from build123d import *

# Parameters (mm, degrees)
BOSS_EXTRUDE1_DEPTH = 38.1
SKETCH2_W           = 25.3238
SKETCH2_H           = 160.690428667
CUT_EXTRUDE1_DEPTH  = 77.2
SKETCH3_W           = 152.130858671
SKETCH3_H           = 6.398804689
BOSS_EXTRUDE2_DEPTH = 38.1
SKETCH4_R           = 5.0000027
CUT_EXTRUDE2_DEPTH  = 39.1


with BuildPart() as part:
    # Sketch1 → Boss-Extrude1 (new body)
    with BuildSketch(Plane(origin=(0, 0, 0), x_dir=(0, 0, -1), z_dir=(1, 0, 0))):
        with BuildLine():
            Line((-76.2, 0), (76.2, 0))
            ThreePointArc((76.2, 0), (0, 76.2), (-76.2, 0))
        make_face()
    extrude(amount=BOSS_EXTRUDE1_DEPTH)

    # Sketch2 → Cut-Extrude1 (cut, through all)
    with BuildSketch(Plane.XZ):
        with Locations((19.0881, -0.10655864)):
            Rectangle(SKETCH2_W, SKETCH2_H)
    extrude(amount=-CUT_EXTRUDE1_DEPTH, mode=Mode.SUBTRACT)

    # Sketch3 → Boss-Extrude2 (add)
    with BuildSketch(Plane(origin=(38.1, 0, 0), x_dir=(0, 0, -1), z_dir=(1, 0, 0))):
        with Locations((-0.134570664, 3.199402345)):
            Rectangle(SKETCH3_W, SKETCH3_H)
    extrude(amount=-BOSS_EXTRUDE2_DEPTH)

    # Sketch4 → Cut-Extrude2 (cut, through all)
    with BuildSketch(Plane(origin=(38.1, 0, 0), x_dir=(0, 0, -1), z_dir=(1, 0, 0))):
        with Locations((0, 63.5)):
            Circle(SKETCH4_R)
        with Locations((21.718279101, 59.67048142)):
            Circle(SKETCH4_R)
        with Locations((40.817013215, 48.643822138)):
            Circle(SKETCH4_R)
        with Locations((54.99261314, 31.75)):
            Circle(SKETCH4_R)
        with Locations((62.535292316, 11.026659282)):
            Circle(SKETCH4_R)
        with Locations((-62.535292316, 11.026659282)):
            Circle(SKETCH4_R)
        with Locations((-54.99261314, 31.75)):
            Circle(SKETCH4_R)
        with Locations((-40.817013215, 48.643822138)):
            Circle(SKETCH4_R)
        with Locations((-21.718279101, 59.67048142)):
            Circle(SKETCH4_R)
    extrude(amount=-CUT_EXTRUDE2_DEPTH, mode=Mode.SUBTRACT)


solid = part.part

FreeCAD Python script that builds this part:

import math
import FreeCAD as App
import Part
import Sketcher
Q = App.Units.Quantity

doc = App.newDocument("Part")
body = doc.addObject("PartDesign::Body", "Body")
body.AllowCompound = True

sketch1 = body.newObject("Sketcher::SketchObject", "Sketch")
sketch1.AttachmentSupport = (doc.getObject("YZ_Plane"), [""])
sketch1.MapMode = "FlatFace"
sketch1.addGeometry([
    Part.LineSegment(App.Vector(0, 76, 0), App.Vector(0, -76, 0)),
    Part.ArcOfCircle(Part.Circle(App.Vector(0, 0, 0), App.Vector(0, 0, 1), 76), math.radians(-90), math.radians(90)),
], False)
sketch1.addConstraint([
    Sketcher.Constraint("Coincident", 0, 1, 1, 2),
    Sketcher.Constraint("Coincident", 1, 1, 0, 2),
    Sketcher.Constraint("Vertical", 0),
    Sketcher.Constraint("Coincident", 1, 3, -1, 1),
    Sketcher.Constraint("PointOnObject", 0, 1, -2),
    Sketcher.Constraint("Radius", 1, Q("3 in")),
])
pad1 = body.newObject("PartDesign::Pad", "Pad")
pad1.Profile = sketch1
pad1.Length = Q("1.5 in")

sketch2 = body.newObject("Sketcher::SketchObject", "Sketch001")
sketch2.AttachmentSupport = (doc.getObject("XZ_Plane"), [""])
sketch2.MapMode = "FlatFace"
sketch2.addGeometry([
    Part.LineSegment(App.Vector(6, 80, 0), App.Vector(6, -80, 0)),
    Part.LineSegment(App.Vector(6, -80, 0), App.Vector(32, -80, 0)),
    Part.LineSegment(App.Vector(32, -80, 0), App.Vector(32, 80, 0)),
    Part.LineSegment(App.Vector(32, 80, 0), App.Vector(6, 80, 0)),
], False)
sketch2.addConstraint([
    Sketcher.Constraint("Coincident", 0, 2, 1, 1),
    Sketcher.Constraint("Coincident", 1, 2, 2, 1),
    Sketcher.Constraint("Coincident", 2, 2, 3, 1),
    Sketcher.Constraint("Coincident", 3, 2, 0, 1),
    Sketcher.Constraint("Vertical", 0),
    Sketcher.Constraint("Horizontal", 1),
    Sketcher.Constraint("Vertical", 2),
    Sketcher.Constraint("Horizontal", 3),
    Sketcher.Constraint("DistanceX", 1, 1, 1, 2, Q("0.997 in")),
    Sketcher.Constraint("DistanceX", -1, 1, 1, 2, Q("1.25 in")),
    Sketcher.Constraint("DistanceY", 0, 2, 0, 1, Q("160.690429 mm")),
    Sketcher.Constraint("DistanceY", 0, 2, -1, 1, Q("80.451773 mm")),
])
pocket1 = body.newObject("PartDesign::Pocket", "Pocket")
pocket1.Profile = sketch2
pocket1.Type = "ThroughAll"

sketch3 = body.newObject("Sketcher::SketchObject", "Sketch002")
sketch3.AttachmentSupport = (doc.getObject("YZ_Plane"), [""])
sketch3.MapMode = "FlatFace"
sketch3.AttachmentOffset = App.Placement(App.Vector(0, 0, 1.5 * 25.4), App.Rotation())
sketch3.addGeometry([
    Part.LineSegment(App.Vector(6, 76, 0), App.Vector(0, 76, 0)),
    Part.LineSegment(App.Vector(0, 76, 0), App.Vector(0, -76, 0)),
    Part.LineSegment(App.Vector(0, -76, 0), App.Vector(6, -76, 0)),
    Part.LineSegment(App.Vector(6, -76, 0), App.Vector(6, 76, 0)),
], False)
sketch3.addConstraint([
    Sketcher.Constraint("Coincident", 0, 2, 1, 1),
    Sketcher.Constraint("Coincident", 1, 2, 2, 1),
    Sketcher.Constraint("Coincident", 2, 2, 3, 1),
    Sketcher.Constraint("Coincident", 3, 2, 0, 1),
    Sketcher.Constraint("Horizontal", 0),
    Sketcher.Constraint("Vertical", 1),
    Sketcher.Constraint("Horizontal", 2),
    Sketcher.Constraint("Vertical", 3),
    Sketcher.Constraint("PointOnObject", 0, 2, -2),
    Sketcher.Constraint("DistanceY", -1, 1, 0, 2, Q("3 in")),
    Sketcher.Constraint("DistanceY", 1, 2, 1, 1, Q("152.130859 mm")),
    Sketcher.Constraint("DistanceX", 0, 2, 0, 1, Q("6.398805 mm")),
])
pad2 = body.newObject("PartDesign::Pad", "Pad001")
pad2.Profile = sketch3
pad2.Length = Q("1.5 in")
pad2.Reversed = True

sketch4 = body.newObject("Sketcher::SketchObject", "Sketch003")
sketch4.AttachmentSupport = (doc.getObject("YZ_Plane"), [""])
sketch4.MapMode = "FlatFace"
sketch4.AttachmentOffset = App.Placement(App.Vector(0, 0, 1.5 * 25.4), App.Rotation())
sketch4.addGeometry([
    Part.Circle(App.Vector(64, 0, 0), App.Vector(0, 0, 1), 5),
    Part.Circle(App.Vector(60, -22, 0), App.Vector(0, 0, 1), 5),
    Part.Circle(App.Vector(49, -41, 0), App.Vector(0, 0, 1), 5),
    Part.Circle(App.Vector(32, -55, 0), App.Vector(0, 0, 1), 5),
    Part.Circle(App.Vector(11, -63, 0), App.Vector(0, 0, 1), 5),
    Part.Circle(App.Vector(11, 63, 0), App.Vector(0, 0, 1), 5),
    Part.Circle(App.Vector(32, 55, 0), App.Vector(0, 0, 1), 5),
    Part.Circle(App.Vector(49, 41, 0), App.Vector(0, 0, 1), 5),
    Part.Circle(App.Vector(60, 22, 0), App.Vector(0, 0, 1), 5),
], False)
sketch4.addConstraint([
    Sketcher.Constraint("Equal", 0, 1),
    Sketcher.Constraint("Equal", 1, 2),
    Sketcher.Constraint("Equal", 2, 3),
    Sketcher.Constraint("Equal", 3, 4),
    Sketcher.Constraint("Equal", 4, 5),
    Sketcher.Constraint("Equal", 5, 6),
    Sketcher.Constraint("Equal", 6, 7),
    Sketcher.Constraint("Equal", 7, 8),
    Sketcher.Constraint("Symmetric", 4, 3, 5, 3, -1),
    Sketcher.Constraint("Symmetric", 3, 3, 6, 3, -1),
    Sketcher.Constraint("Symmetric", 2, 3, 7, 3, -1),
    Sketcher.Constraint("Symmetric", 1, 3, 8, 3, -1),
    Sketcher.Constraint("PointOnObject", 0, 3, -1),
    Sketcher.Constraint("DistanceX", -1, 1, 0, 3, Q("2.5 in")),
    Sketcher.Constraint("DistanceX", -1, 1, 3, 3, Q("1.25 in")),
    Sketcher.Constraint("Diameter", 0, Q("10.000005 mm")),
    Sketcher.Constraint("DistanceY", 3, 3, 2, 3, Q("14.1756 mm")),
    Sketcher.Constraint("DistanceX", -1, 1, 1, 3, Q("59.670481 mm")),
    Sketcher.Constraint("DistanceY", 1, 3, -1, 1, Q("21.718279 mm")),
    Sketcher.Constraint("DistanceX", -1, 1, 4, 3, Q("11.026659 mm")),
    Sketcher.Constraint("DistanceX", 2, 3, 1, 3, Q("11.026659 mm")),
    Sketcher.Constraint("DistanceY", 4, 3, 3, 3, Q("7.542679 mm")),
    Sketcher.Constraint("DistanceY", 1, 3, 5, 3, Q("84.253571 mm")),
])
pocket2 = body.newObject("PartDesign::Pocket", "Pocket001")
pocket2.Profile = sketch4
pocket2.Type = "ThroughAll"

doc.recompute()
